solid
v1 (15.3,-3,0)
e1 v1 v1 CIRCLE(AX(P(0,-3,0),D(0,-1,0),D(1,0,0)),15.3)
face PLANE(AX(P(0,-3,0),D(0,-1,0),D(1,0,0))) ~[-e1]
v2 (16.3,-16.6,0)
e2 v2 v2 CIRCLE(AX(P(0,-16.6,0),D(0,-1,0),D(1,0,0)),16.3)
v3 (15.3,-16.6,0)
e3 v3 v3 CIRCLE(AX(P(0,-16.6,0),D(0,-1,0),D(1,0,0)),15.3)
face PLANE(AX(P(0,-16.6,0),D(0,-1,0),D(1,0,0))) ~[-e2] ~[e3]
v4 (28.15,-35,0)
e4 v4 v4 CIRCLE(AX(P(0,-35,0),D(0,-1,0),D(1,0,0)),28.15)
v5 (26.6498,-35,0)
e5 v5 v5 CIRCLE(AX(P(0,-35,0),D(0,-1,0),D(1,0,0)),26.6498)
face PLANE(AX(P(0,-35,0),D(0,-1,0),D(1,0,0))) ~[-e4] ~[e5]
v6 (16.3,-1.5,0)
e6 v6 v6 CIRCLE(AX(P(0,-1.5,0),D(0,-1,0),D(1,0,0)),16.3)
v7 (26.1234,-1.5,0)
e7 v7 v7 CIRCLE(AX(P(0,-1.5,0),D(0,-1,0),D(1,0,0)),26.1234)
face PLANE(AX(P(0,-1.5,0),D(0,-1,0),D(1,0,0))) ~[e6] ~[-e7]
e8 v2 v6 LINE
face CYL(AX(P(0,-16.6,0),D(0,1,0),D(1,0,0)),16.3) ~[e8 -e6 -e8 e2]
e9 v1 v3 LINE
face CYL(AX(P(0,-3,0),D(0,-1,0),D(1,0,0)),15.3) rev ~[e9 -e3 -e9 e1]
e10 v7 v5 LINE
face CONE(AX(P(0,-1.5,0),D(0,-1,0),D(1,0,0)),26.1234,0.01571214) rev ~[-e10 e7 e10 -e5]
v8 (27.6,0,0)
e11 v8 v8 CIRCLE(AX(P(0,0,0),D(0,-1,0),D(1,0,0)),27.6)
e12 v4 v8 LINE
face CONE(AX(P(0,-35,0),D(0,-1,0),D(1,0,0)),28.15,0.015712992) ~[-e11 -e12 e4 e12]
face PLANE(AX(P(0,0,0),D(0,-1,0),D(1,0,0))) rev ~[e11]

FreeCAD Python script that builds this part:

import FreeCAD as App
import Part
import Sketcher

V = App.Vector
Q = App.Units.Quantity

doc = App.newDocument("Part")
body = doc.addObject("PartDesign::Body", "Body")

# Sketch on XY plane
sketch1 = body.newObject("Sketcher::SketchObject", "Sketch")
sketch1.AttachmentSupport = (doc.getObject("XY_Plane"), [""])
sketch1.MapMode = "FlatFace"
sketch1.addGeometry(Part.LineSegment(V(26.6, -35, 0), V(28.1, -35, 0)), False)
sketch1.addGeometry(Part.LineSegment(V(28.1, -35, 0), V(27.6, 0, 0)), False)
sketch1.addGeometry(Part.LineSegment(V(27.6, 0, 0), V(0, 0, 0)), False)
sketch1.addGeometry(Part.LineSegment(V(0, 0, 0), V(0, -3, 0)), False)
sketch1.addGeometry(Part.LineSegment(V(0, -3, 0), V(15.3, -3, 0)), False)
sketch1.addGeometry(Part.LineSegment(V(15.3, -3, 0), V(15.3, -16.6, 0)), False)
sketch1.addGeometry(Part.LineSegment(V(15.3, -16.6, 0), V(16.3, -16.6, 0)), False)
sketch1.addGeometry(Part.LineSegment(V(16.3, -16.6, 0), V(16.3, -1.5, 0)), False)
sketch1.addGeometry(Part.LineSegment(V(16.3, -1.5, 0), V(26.1, -1.5, 0)), False)
sketch1.addGeometry(Part.LineSegment(V(26.1, -1.5, 0), V(26.6, -35, 0)), False)
sketch1.addConstraint(Sketcher.Constraint("Coincident", 0, 2, 1, 1))
sketch1.addConstraint(Sketcher.Constraint("Coincident", 1, 2, 2, 1))
sketch1.addConstraint(Sketcher.Constraint("Coincident", 2, 2, 3, 1))
sketch1.addConstraint(Sketcher.Constraint("Coincident", 3, 2, 4, 1))
sketch1.addConstraint(Sketcher.Constraint("Coincident", 4, 2, 5, 1))
sketch1.addConstraint(Sketcher.Constraint("Coincident", 5, 2, 6, 1))
sketch1.addConstraint(Sketcher.Constraint("Coincident", 6, 2, 7, 1))
sketch1.addConstraint(Sketcher.Constraint("Coincident", 7, 2, 8, 1))
sketch1.addConstraint(Sketcher.Constraint("Coincident", 8, 2, 9, 1))
sketch1.addConstraint(Sketcher.Constraint("Coincident", 9, 2, 0, 1))
sketch1.addConstraint(Sketcher.Constraint("Horizontal", 0))
sketch1.addConstraint(Sketcher.Constraint("Horizontal", 2))
sketch1.addConstraint(Sketcher.Constraint("Vertical", 3))
sketch1.addConstraint(Sketcher.Constraint("Horizontal", 4))
sketch1.addConstraint(Sketcher.Constraint("Vertical", 5))
sketch1.addConstraint(Sketcher.Constraint("Horizontal", 6))
sketch1.addConstraint(Sketcher.Constraint("Vertical", 7))
sketch1.addConstraint(Sketcher.Constraint("Horizontal", 8))
sketch1.addConstraint(Sketcher.Constraint("Coincident", 2, 2, -1, 1))
sketch1.addConstraint(Sketcher.Constraint("Parallel", 1, 9))
sketch1.addConstraint(Sketcher.Constraint("DistanceX", 6, 1, 6, 2, 1.0))
sketch1.addConstraint(Sketcher.Constraint("DistanceY", 3, 2, 3, 1, 3.0))
sketch1.addConstraint(Sketcher.Constraint("DistanceY", 0, 2, -1, 1, 35.0))
sketch1.addConstraint(Sketcher.Constraint("DistanceY", 7, 2, -1, 1, 1.5))
sketch1.addConstraint(Sketcher.Constraint("DistanceY", 0, 2, 5, 2, 18.4))
sketch1.addConstraint(Sketcher.Constraint("DistanceX", 0, 1, 0, 2, 1.5002))
sketch1.addConstraint(Sketcher.Constraint("DistanceX", 2, 2, 2, 1, 27.6))
sketch1.addConstraint(Sketcher.Constraint("DistanceX", 4, 1, 4, 2, 15.3))
sketch1.addConstraint(Sketcher.Constraint("Angle", 1, Q("90.9003 deg")))
revolution = body.newObject("PartDesign::Revolution", "Revolution")
revolution.Profile = sketch1
revolution.ReferenceAxis = (sketch1, ["V_Axis"])
revolution.Angle = 360

doc.recompute()
